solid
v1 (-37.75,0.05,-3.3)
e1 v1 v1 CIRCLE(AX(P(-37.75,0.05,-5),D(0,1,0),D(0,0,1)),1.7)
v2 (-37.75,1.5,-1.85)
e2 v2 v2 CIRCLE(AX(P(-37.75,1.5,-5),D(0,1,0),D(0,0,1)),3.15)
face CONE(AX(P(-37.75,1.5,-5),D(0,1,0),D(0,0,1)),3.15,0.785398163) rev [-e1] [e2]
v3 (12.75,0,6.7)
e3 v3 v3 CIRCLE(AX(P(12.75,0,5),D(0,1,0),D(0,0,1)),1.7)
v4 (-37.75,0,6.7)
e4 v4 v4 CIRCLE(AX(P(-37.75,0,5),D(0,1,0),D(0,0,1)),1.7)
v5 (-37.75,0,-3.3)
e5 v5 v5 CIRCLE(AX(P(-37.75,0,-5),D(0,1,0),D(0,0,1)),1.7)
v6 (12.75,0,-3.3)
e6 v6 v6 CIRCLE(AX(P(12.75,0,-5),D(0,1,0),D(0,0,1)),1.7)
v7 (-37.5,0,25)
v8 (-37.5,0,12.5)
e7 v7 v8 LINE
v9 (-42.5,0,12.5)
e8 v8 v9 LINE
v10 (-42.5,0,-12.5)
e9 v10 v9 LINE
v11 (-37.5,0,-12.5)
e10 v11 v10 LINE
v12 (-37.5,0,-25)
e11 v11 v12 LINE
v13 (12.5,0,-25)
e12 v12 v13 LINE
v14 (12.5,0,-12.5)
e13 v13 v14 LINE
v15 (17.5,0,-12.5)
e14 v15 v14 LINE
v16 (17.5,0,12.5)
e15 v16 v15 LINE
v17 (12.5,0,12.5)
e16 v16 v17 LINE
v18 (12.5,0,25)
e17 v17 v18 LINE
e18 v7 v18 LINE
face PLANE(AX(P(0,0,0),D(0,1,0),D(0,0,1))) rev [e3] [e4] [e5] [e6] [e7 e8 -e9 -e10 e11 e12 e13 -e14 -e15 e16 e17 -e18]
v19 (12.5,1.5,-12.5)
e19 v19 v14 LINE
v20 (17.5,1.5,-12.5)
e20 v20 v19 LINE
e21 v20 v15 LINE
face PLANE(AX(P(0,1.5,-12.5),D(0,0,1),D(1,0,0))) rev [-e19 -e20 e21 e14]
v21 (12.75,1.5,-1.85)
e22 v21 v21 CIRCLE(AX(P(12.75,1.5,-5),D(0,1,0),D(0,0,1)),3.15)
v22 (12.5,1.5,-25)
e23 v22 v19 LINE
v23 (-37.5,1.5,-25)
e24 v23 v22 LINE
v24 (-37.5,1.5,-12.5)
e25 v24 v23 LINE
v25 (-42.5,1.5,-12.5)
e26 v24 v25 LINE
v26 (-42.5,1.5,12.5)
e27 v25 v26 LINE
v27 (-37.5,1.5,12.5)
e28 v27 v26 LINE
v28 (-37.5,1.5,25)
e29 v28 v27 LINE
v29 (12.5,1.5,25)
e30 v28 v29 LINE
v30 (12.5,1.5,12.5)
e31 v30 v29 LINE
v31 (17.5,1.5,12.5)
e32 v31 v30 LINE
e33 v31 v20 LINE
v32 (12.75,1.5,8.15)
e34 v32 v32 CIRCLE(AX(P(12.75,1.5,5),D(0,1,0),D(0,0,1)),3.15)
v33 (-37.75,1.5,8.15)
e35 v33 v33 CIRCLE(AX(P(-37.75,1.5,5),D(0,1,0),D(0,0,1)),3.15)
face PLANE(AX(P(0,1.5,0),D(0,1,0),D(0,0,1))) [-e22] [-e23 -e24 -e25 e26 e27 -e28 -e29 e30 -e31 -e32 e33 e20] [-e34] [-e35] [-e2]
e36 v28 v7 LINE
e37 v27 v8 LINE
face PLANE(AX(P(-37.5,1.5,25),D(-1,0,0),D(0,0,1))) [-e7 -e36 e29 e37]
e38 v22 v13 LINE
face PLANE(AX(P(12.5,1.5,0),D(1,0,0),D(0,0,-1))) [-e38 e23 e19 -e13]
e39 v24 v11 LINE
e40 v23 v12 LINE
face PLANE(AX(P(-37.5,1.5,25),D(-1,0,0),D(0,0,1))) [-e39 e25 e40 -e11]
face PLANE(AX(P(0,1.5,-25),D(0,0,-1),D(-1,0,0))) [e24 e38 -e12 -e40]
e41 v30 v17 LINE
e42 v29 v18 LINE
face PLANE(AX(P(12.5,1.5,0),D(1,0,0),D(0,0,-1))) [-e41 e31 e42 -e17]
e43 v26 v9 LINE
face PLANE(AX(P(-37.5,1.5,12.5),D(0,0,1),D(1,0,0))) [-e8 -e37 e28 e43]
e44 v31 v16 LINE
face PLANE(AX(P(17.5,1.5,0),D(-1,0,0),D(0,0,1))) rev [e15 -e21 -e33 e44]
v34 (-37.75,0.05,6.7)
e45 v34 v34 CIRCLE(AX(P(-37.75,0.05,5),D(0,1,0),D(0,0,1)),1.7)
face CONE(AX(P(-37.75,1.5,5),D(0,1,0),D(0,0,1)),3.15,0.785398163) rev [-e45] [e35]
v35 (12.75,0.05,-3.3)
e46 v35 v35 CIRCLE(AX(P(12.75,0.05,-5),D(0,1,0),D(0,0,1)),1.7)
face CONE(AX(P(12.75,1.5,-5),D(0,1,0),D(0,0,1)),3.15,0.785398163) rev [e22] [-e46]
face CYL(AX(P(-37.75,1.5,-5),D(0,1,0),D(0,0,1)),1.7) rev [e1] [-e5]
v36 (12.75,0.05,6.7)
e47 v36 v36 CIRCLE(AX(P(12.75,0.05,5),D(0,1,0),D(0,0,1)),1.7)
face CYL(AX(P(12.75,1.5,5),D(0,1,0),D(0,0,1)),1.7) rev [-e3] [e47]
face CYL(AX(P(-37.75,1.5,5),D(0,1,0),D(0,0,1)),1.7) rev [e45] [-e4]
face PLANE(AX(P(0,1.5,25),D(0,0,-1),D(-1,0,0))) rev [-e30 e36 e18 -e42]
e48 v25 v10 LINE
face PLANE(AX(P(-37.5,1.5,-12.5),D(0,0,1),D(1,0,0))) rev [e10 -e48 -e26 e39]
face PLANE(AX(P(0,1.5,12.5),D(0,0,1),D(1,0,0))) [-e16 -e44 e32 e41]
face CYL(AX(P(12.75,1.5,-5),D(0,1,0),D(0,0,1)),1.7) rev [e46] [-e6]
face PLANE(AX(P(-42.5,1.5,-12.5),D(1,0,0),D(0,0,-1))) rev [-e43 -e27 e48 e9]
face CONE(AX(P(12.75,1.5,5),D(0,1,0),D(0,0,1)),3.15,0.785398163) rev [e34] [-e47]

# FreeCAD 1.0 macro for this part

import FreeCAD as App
import Part
import Sketcher
from FreeCAD import Vector
Q = App.Units.Quantity

doc = App.newDocument("Part")
body = doc.addObject("PartDesign::Body", "Body")

# Sketch on XZ plane
sketch1 = doc.addObject("Sketcher::SketchObject", "Sketch")
body.addObject(sketch1)
sketch1.AttachmentSupport = (doc.XZ_Plane, [""])
sketch1.MapMode = "FlatFace"
sketch1.addGeometry(Part.LineSegment(Vector(12, -25, 0), Vector(-38, -25, 0)), False)
sketch1.addGeometry(Part.LineSegment(Vector(-38, -25, 0), Vector(-38, -12, 0)), False)
sketch1.addGeometry(Part.LineSegment(Vector(-38, -12, 0), Vector(-42, -12, 0)), False)
sketch1.addGeometry(Part.LineSegment(Vector(-42, -12, 0), Vector(-42, 12, 0)), False)
sketch1.addGeometry(Part.LineSegment(Vector(-42, 12, 0), Vector(-38, 12, 0)), False)
sketch1.addGeometry(Part.LineSegment(Vector(-38, 12, 0), Vector(-38, 25, 0)), False)
sketch1.addGeometry(Part.LineSegment(Vector(-38, 25, 0), Vector(12, 25, 0)), False)
sketch1.addGeometry(Part.LineSegment(Vector(12, 25, 0), Vector(12, 12, 0)), False)
sketch1.addGeometry(Part.LineSegment(Vector(12, 12, 0), Vector(18, 12, 0)), False)
sketch1.addGeometry(Part.LineSegment(Vector(18, 12, 0), Vector(18, -12, 0)), False)
sketch1.addGeometry(Part.LineSegment(Vector(18, -12, 0), Vector(12, -12, 0)), False)
sketch1.addGeometry(Part.LineSegment(Vector(12, -12, 0), Vector(12, -25, 0)), False)
sketch1.addConstraint(Sketcher.Constraint("Coincident", 0, 2, 1, 1))
sketch1.addConstraint(Sketcher.Constraint("Coincident", 1, 2, 2, 1))
sketch1.addConstraint(Sketcher.Constraint("Coincident", 2, 2, 3, 1))
sketch1.addConstraint(Sketcher.Constraint("Coincident", 3, 2, 4, 1))
sketch1.addConstraint(Sketcher.Constraint("Coincident", 4, 2, 5, 1))
sketch1.addConstraint(Sketcher.Constraint("Coincident", 5, 2, 6, 1))
sketch1.addConstraint(Sketcher.Constraint("Coincident", 6, 2, 7, 1))
sketch1.addConstraint(Sketcher.Constraint("Coincident", 7, 2, 8, 1))
sketch1.addConstraint(Sketcher.Constraint("Coincident", 8, 2, 9, 1))
sketch1.addConstraint(Sketcher.Constraint("Coincident", 9, 2, 10, 1))
sketch1.addConstraint(Sketcher.Constraint("Coincident", 10, 2, 11, 1))
sketch1.addConstraint(Sketcher.Constraint("Coincident", 11, 2, 0, 1))
sketch1.addConstraint(Sketcher.Constraint("Horizontal", 0))
sketch1.addConstraint(Sketcher.Constraint("Vertical", 1))
sketch1.addConstraint(Sketcher.Constraint("Horizontal", 2))
sketch1.addConstraint(Sketcher.Constraint("Vertical", 3))
sketch1.addConstraint(Sketcher.Constraint("Horizontal", 4))
sketch1.addConstraint(Sketcher.Constraint("Vertical", 5))
sketch1.addConstraint(Sketcher.Constraint("Horizontal", 6))
sketch1.addConstraint(Sketcher.Constraint("Vertical", 7))
sketch1.addConstraint(Sketcher.Constraint("Horizontal", 8))
sketch1.addConstraint(Sketcher.Constraint("Vertical", 9))
sketch1.addConstraint(Sketcher.Constraint("Horizontal", 10))
sketch1.addConstraint(Sketcher.Constraint("Vertical", 11))
sketch1.addConstraint(Sketcher.Constraint("Symmetric", 1, 2, 4, 2, -1))
sketch1.addConstraint(Sketcher.Constraint("Symmetric", 7, 2, 10, 2, -1))
sketch1.addConstraint(Sketcher.Constraint("Horizontal", 4, 2, 7, 2))
sketch1.addConstraint(Sketcher.Constraint("Equal", 4, 8))
sketch1.addConstraint(Sketcher.Constraint("Equal", 1, 5))
sketch1.addConstraint(Sketcher.Constraint("DistanceX", 0, 2, 0, 1, 50.0))
sketch1.addConstraint(Sketcher.Constraint("DistanceX", 2, 2, 2, 1, 5.0))
sketch1.addConstraint(Sketcher.Constraint("DistanceY", 3, 1, 3, 2, 25.0))
sketch1.addConstraint(Sketcher.Constraint("DistanceY", 1, 1, 1, 2, 12.5))
sketch1.addConstraint(Sketcher.Constraint("DistanceX", 0, 2, -1, 1, 37.5))
pad1 = doc.addObject("PartDesign::Pad", "Pad")
body.addObject(pad1)
pad1.Profile = sketch1
pad1.Length = 1.5
pad1.Reversed = True

# Sketch on YZ plane
sketch2 = doc.addObject("Sketcher::SketchObject", "Sketch001")
body.addObject(sketch2)
sketch2.AttachmentSupport = (doc.YZ_Plane, [""])
sketch2.MapMode = "FlatFace"
sketch2.AttachmentOffset = App.Placement(Vector(0, 0, 12.75), App.Rotation())
sketch2.addGeometry(Part.LineSegment(Vector(0, 5, 0), Vector(1.5, 5, 0)), False)
sketch2.addGeometry(Part.LineSegment(Vector(1.5, 5, 0), Vector(1.5, 8.15, 0)), False)
sketch2.addGeometry(Part.LineSegment(Vector(1.5, 8.15, 0), Vector(0.05, 6.7, 0)), False)
sketch2.addGeometry(Part.LineSegment(Vector(0.05, 6.7, 0), Vector(0, 6.7, 0)), False)
sketch2.addGeometry(Part.LineSegment(Vector(0, 6.7, 0), Vector(0, 5, 0)), False)
sketch2.addGeometry(Part.LineSegment(Vector(1.5, 5, 0), Vector(0, 5, 0)), True)  # axis
sketch2.addConstraint(Sketcher.Constraint("Coincident", 0, 2, 1, 1))
sketch2.addConstraint(Sketcher.Constraint("Coincident", 1, 2, 2, 1))
sketch2.addConstraint(Sketcher.Constraint("Coincident", 2, 2, 3, 1))
sketch2.addConstraint(Sketcher.Constraint("Coincident", 3, 2, 4, 1))
sketch2.addConstraint(Sketcher.Constraint("Coincident", 4, 2, 0, 1))
sketch2.addConstraint(Sketcher.Constraint("Horizontal", 0))
sketch2.addConstraint(Sketcher.Constraint("Vertical", 1))
sketch2.addConstraint(Sketcher.Constraint("Horizontal", 3))
sketch2.addConstraint(Sketcher.Constraint("Vertical", 4))
sketch2.addConstraint(Sketcher.Constraint("Horizontal", 5))
sketch2.addConstraint(Sketcher.Constraint("Coincident", 5, 1, 0, 2))
sketch2.addConstraint(Sketcher.Constraint("PointOnObject", 3, 2, -2))
sketch2.addConstraint(Sketcher.Constraint("PointOnObject", 5, 2, -2))
sketch2.addConstraint(Sketcher.Constraint("Angle", 2, Q("-135 deg")))
sketch2.addConstraint(Sketcher.Constraint("DistanceX", 0, 1, 0, 2, 1.5))
sketch2.addConstraint(Sketcher.Constraint("DistanceY", 4, 2, 4, 1, 1.7))
sketch2.addConstraint(Sketcher.Constraint("DistanceY", -1, 1, 0, 2, 5.0))
sketch2.addConstraint(Sketcher.Constraint("DistanceX", 3, 2, 3, 1, 0.05))
groove = doc.addObject("PartDesign::Groove", "Groove")
body.addObject(groove)
groove.Profile = sketch2
groove.ReferenceAxis = (sketch2, ["Axis0"])
groove.Angle = 360
doc.recompute()

linearpattern = doc.addObject("PartDesign::LinearPattern", "LinearPattern")
body.addObject(linearpattern)
linearpattern.Originals = [groove]
linearpattern.Direction = (doc.Z_Axis, [""])
linearpattern.Mode = "offset"
linearpattern.Offset = 10
linearpattern.Occurrences = 2
linearpattern.Reversed = True
body.Tip = linearpattern
doc.recompute()

datumline = doc.addObject("PartDesign::Line", "DatumLine")
body.addObject(datumline)
datumline.Placement = App.Placement(Vector(0, 0, 0), App.Rotation(Vector(0, 0, 1), Vector(-0.980952451, 0, -0.19424801)))
linearpattern2 = doc.addObject("PartDesign::LinearPattern", "LinearPattern001")
body.addObject(linearpattern2)
linearpattern2.Originals = [groove]
linearpattern2.Direction = (datumline, [""])
linearpattern2.Mode = "offset"
linearpattern2.Offset = 51.480579
linearpattern2.Occurrences = 2
body.Tip = linearpattern2
doc.recompute()

linearpattern3 = doc.addObject("PartDesign::LinearPattern", "LinearPattern002")
body.addObject(linearpattern3)
linearpattern3.Originals = [groove]
linearpattern3.Direction = (doc.X_Axis, [""])
linearpattern3.Mode = "offset"
linearpattern3.Offset = 50.5
linearpattern3.Occurrences = 2
linearpattern3.Reversed = True
body.Tip = linearpattern3

doc.recompute()
